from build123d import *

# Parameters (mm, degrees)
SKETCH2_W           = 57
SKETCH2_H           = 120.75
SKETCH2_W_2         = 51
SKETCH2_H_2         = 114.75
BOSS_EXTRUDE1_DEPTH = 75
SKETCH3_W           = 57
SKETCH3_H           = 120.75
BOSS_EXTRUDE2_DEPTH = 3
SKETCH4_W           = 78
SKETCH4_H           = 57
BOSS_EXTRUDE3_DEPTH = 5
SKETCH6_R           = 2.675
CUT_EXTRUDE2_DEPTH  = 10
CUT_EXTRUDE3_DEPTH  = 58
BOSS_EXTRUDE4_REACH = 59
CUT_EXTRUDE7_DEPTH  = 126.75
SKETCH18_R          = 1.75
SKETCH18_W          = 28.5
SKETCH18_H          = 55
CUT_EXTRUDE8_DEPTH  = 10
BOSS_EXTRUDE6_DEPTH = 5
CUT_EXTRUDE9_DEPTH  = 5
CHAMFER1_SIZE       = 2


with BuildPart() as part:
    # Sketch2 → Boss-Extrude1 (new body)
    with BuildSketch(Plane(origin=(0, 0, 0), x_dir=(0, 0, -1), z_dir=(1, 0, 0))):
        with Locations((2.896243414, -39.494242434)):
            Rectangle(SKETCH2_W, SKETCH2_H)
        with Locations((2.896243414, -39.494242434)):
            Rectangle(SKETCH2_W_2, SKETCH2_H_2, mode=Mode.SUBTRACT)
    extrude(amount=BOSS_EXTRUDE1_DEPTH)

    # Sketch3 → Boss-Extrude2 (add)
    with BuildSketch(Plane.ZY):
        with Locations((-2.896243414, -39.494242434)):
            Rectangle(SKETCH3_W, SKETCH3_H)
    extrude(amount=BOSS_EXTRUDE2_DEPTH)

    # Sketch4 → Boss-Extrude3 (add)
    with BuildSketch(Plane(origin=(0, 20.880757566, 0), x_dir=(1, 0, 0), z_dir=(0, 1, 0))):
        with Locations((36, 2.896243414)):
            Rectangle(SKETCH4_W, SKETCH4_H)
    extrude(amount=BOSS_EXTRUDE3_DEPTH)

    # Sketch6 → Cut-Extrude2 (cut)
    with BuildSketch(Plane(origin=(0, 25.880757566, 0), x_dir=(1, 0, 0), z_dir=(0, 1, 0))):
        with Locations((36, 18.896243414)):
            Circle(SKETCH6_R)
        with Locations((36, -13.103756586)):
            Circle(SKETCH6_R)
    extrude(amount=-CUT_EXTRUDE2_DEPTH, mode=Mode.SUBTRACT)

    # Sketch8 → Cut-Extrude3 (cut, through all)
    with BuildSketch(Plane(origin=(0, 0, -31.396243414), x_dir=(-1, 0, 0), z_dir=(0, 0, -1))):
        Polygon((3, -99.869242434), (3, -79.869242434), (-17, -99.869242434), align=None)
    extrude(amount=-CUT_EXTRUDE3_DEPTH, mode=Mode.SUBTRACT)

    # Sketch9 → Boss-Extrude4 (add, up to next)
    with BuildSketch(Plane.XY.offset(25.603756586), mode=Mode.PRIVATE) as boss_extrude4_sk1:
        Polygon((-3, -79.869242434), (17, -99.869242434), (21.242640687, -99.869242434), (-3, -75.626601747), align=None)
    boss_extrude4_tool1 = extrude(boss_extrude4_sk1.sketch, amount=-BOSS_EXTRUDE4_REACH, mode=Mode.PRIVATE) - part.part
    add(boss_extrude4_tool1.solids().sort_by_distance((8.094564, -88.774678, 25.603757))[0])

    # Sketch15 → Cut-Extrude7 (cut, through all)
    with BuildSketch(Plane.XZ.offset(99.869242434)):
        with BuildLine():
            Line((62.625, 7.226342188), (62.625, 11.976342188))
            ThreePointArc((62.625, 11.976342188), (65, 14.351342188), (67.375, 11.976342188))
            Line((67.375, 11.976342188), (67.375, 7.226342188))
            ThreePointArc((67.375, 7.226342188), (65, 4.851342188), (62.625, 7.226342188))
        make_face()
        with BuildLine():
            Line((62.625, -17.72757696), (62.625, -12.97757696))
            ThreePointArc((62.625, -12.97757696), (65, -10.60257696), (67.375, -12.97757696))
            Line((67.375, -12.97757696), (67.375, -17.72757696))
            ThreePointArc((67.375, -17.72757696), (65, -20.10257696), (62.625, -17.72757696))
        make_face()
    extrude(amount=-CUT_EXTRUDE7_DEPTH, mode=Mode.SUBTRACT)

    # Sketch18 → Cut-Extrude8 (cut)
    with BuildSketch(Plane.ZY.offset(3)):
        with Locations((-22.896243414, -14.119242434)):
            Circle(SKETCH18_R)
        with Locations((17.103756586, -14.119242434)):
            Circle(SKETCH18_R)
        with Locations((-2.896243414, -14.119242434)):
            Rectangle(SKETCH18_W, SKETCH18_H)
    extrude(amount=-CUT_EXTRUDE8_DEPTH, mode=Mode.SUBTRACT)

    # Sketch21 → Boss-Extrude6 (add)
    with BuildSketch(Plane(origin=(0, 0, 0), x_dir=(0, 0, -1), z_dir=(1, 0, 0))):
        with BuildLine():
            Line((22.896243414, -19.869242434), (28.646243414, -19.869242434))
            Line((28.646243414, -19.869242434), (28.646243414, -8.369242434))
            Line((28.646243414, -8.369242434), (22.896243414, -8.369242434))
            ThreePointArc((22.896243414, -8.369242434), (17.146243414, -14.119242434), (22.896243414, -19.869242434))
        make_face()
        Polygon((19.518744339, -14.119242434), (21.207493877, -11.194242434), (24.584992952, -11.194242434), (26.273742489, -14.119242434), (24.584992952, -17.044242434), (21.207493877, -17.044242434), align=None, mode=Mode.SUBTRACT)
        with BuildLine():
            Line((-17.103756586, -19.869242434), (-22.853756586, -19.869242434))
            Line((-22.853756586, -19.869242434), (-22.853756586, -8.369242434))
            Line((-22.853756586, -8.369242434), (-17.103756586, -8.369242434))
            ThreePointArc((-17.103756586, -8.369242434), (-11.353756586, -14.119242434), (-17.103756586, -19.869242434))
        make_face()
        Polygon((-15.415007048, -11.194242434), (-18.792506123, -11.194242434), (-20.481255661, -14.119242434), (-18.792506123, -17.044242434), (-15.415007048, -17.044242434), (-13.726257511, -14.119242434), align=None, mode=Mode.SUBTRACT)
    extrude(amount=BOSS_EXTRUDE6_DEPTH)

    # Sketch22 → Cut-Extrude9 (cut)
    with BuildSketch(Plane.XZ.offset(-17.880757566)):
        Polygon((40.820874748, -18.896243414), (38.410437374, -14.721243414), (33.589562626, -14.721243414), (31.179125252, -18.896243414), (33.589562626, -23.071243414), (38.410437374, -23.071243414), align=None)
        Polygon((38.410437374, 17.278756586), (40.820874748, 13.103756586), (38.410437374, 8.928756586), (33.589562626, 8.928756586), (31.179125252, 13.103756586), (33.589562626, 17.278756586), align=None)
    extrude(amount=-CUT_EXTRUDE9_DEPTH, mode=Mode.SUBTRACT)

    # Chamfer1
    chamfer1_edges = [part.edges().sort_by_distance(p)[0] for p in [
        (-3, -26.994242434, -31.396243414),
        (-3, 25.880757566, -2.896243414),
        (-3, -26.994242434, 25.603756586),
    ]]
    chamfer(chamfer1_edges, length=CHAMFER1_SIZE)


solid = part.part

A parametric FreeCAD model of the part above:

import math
import FreeCAD as App
import Part
import Sketcher
Q = App.Units.Quantity


def edges_at(feature, points):
    """Names of the edges that pass closest to the given points."""
    edges = feature.Shape.Edges
    near = lambda p: min(range(len(edges)), key=lambda i: edges[i].distToShape(Part.Vertex(*p))[0])
    return sorted({f"Edge{near(p) + 1}" for p in points})

doc = App.newDocument("Part")
body = doc.addObject("PartDesign::Body", "Body")

sketch1 = doc.addObject("Sketcher::SketchObject", "Sketch")
body.addObject(sketch1)
sketch1.AttachmentSupport = (doc.YZ_Plane, [""])
sketch1.MapMode = "FlatFace"
sketch1.addGeometry(Part.LineSegment(App.Vector(21, 26, 0), App.Vector(-100, 26, 0)), False)
sketch1.addGeometry(Part.LineSegment(App.Vector(-100, 26, 0), App.Vector(-100, -31, 0)), False)
sketch1.addGeometry(Part.LineSegment(App.Vector(-100, -31, 0), App.Vector(21, -31, 0)), False)
sketch1.addGeometry(Part.LineSegment(App.Vector(21, -31, 0), App.Vector(21, 26, 0)), False)
sketch1.addGeometry(Part.LineSegment(App.Vector(-97, -28, 0), App.Vector(-97, 23, 0)), False)
sketch1.addGeometry(Part.LineSegment(App.Vector(-97, 23, 0), App.Vector(18, 23, 0)), False)
sketch1.addGeometry(Part.LineSegment(App.Vector(18, 23, 0), App.Vector(18, -28, 0)), False)
sketch1.addGeometry(Part.LineSegment(App.Vector(18, -28, 0), App.Vector(-97, -28, 0)), False)
sketch1.addConstraint(Sketcher.Constraint("Coincident", 0, 2, 1, 1))
sketch1.addConstraint(Sketcher.Constraint("Coincident", 1, 2, 2, 1))
sketch1.addConstraint(Sketcher.Constraint("Coincident", 2, 2, 3, 1))
sketch1.addConstraint(Sketcher.Constraint("Coincident", 3, 2, 0, 1))
sketch1.addConstraint(Sketcher.Constraint("Coincident", 4, 2, 5, 1))
sketch1.addConstraint(Sketcher.Constraint("Coincident", 5, 2, 6, 1))
sketch1.addConstraint(Sketcher.Constraint("Coincident", 6, 2, 7, 1))
sketch1.addConstraint(Sketcher.Constraint("Coincident", 7, 2, 4, 1))
sketch1.addConstraint(Sketcher.Constraint("Horizontal", 0))
sketch1.addConstraint(Sketcher.Constraint("Vertical", 1))
sketch1.addConstraint(Sketcher.Constraint("Horizontal", 2))
sketch1.addConstraint(Sketcher.Constraint("Vertical", 3))
sketch1.addConstraint(Sketcher.Constraint("Vertical", 4))
sketch1.addConstraint(Sketcher.Constraint("Horizontal", 5))
sketch1.addConstraint(Sketcher.Constraint("Vertical", 6))
sketch1.addConstraint(Sketcher.Constraint("Horizontal", 7))
sketch1.addConstraint(Sketcher.Constraint("DistanceY", 1, 2, 1, 1, Q("57 mm")))
sketch1.addConstraint(Sketcher.Constraint("DistanceY", 4, 1, 4, 2, Q("51 mm")))
sketch1.addConstraint(Sketcher.Constraint("DistanceX", 0, 2, 4, 2, Q("3 mm")))
sketch1.addConstraint(Sketcher.Constraint("DistanceY", 4, 2, 0, 2, Q("3 mm")))
sketch1.addConstraint(Sketcher.Constraint("DistanceX", 5, 2, 3, 2, Q("3 mm")))
sketch1.addConstraint(Sketcher.Constraint("DistanceX", 0, 2, 0, 1, Q("120.75 mm")))
sketch1.addConstraint(Sketcher.Constraint("DistanceX", 0, 2, -1, 1, Q("99.869242 mm")))
sketch1.addConstraint(Sketcher.Constraint("DistanceY", -1, 1, 0, 2, Q("25.603757 mm")))
pad1 = doc.addObject("PartDesign::Pad", "Pad")
body.addObject(pad1)
pad1.Profile = sketch1
pad1.Length = 75

sketch2 = doc.addObject("Sketcher::SketchObject", "Sketch001")
body.addObject(sketch2)
sketch2.AttachmentSupport = (doc.YZ_Plane, [""])
sketch2.MapMode = "FlatFace"
sketch2.addGeometry(Part.LineSegment(App.Vector(21, -31, 0), App.Vector(-100, -31, 0)), False)
sketch2.addGeometry(Part.LineSegment(App.Vector(-100, -31, 0), App.Vector(-100, 26, 0)), False)
sketch2.addGeometry(Part.LineSegment(App.Vector(-100, 26, 0), App.Vector(21, 26, 0)), False)
sketch2.addGeometry(Part.LineSegment(App.Vector(21, 26, 0), App.Vector(21, -31, 0)), False)
sketch2.addConstraint(Sketcher.Constraint("Coincident", 0, 2, 1, 1))
sketch2.addConstraint(Sketcher.Constraint("Coincident", 1, 2, 2, 1))
sketch2.addConstraint(Sketcher.Constraint("Coincident", 2, 2, 3, 1))
sketch2.addConstraint(Sketcher.Constraint("Coincident", 3, 2, 0, 1))
sketch2.addConstraint(Sketcher.Constraint("Horizontal", 0))
sketch2.addConstraint(Sketcher.Constraint("Vertical", 1))
sketch2.addConstraint(Sketcher.Constraint("Horizontal", 2))
sketch2.addConstraint(Sketcher.Constraint("Vertical", 3))
sketch2.addConstraint(Sketcher.Constraint("DistanceY", 1, 1, 1, 2, Q("57 mm")))
sketch2.addConstraint(Sketcher.Constraint("DistanceX", 0, 2, 0, 1, Q("120.75 mm")))
sketch2.addConstraint(Sketcher.Constraint("DistanceX", 0, 2, -1, 1, Q("99.869242 mm")))
sketch2.addConstraint(Sketcher.Constraint("DistanceY", 0, 2, -1, 1, Q("31.396243 mm")))
pad2 = doc.addObject("PartDesign::Pad", "Pad001")
body.addObject(pad2)
pad2.Profile = sketch2
pad2.Length = 3
pad2.Reversed = True

sketch3 = doc.addObject("Sketcher::SketchObject", "Sketch002")
body.addObject(sketch3)
sketch3.AttachmentSupport = (doc.XZ_Plane, [""])
sketch3.MapMode = "FlatFace"
sketch3.AttachmentOffset = App.Placement(App.Vector(0, 0, -20.880758), App.Rotation())
sketch3.addGeometry(Part.LineSegment(App.Vector(-3, -31, 0), App.Vector(-3, 26, 0)), False)
sketch3.addGeometry(Part.LineSegment(App.Vector(-3, 26, 0), App.Vector(75, 26, 0)), False)
sketch3.addGeometry(Part.LineSegment(App.Vector(75, 26, 0), App.Vector(75, -31, 0)), False)
sketch3.addGeometry(Part.LineSegment(App.Vector(75, -31, 0), App.Vector(-3, -31, 0)), False)
sketch3.addConstraint(Sketcher.Constraint("Coincident", 0, 2, 1, 1))
sketch3.addConstraint(Sketcher.Constraint("Coincident", 1, 2, 2, 1))
sketch3.addConstraint(Sketcher.Constraint("Coincident", 2, 2, 3, 1))
sketch3.addConstraint(Sketcher.Constraint("Coincident", 3, 2, 0, 1))
sketch3.addConstraint(Sketcher.Constraint("Vertical", 0))
sketch3.addConstraint(Sketcher.Constraint("Horizontal", 1))
sketch3.addConstraint(Sketcher.Constraint("Vertical", 2))
sketch3.addConstraint(Sketcher.Constraint("Horizontal", 3))
sketch3.addConstraint(Sketcher.Constraint("DistanceX", 1, 1, 1, 2, Q("78 mm")))
sketch3.addConstraint(Sketcher.Constraint("DistanceY", 0, 1, 0, 2, Q("57 mm")))
sketch3.addConstraint(Sketcher.Constraint("DistanceX", 0, 2, -1, 1, Q("3 mm")))
sketch3.addConstraint(Sketcher.Constraint("DistanceY", -1, 1, 0, 2, Q("25.603757 mm")))
pad3 = doc.addObject("PartDesign::Pad", "Pad002")
body.addObject(pad3)
pad3.Profile = sketch3
pad3.Length = 5
pad3.Reversed = True

sketch4 = doc.addObject("Sketcher::SketchObject", "Sketch003")
body.addObject(sketch4)
sketch4.AttachmentSupport = (doc.XZ_Plane, [""])
sketch4.MapMode = "FlatFace"
sketch4.AttachmentOffset = App.Placement(App.Vector(0, 0, -25.880758), App.Rotation())
sketch4.addGeometry(Part.Circle(App.Vector(36, -18.9, 0), App.Vector(0, 0, 1), 2.7), False)
sketch4.addGeometry(Part.Circle(App.Vector(36, 13.1, 0), App.Vector(0, 0, 1), 2.7), False)
sketch4.addConstraint(Sketcher.Constraint("Equal", 0, 1))
sketch4.addConstraint(Sketcher.Constraint("Vertical", 0, 3, 1, 3))
sketch4.addConstraint(Sketcher.Constraint("Diameter", 0, Q("5.35 mm")))
sketch4.addConstraint(Sketcher.Constraint("DistanceX", -1, 1, 0, 3, Q("36 mm")))
sketch4.addConstraint(Sketcher.Constraint("DistanceY", 0, 3, 1, 3, Q("32 mm")))
sketch4.addConstraint(Sketcher.Constraint("DistanceY", 0, 3, -1, 1, Q("18.896243 mm")))
pocket1 = doc.addObject("PartDesign::Pocket", "Pocket")
body.addObject(pocket1)
pocket1.Profile = sketch4
pocket1.Length = 10
pocket1.Reversed = True

sketch5 = doc.addObject("Sketcher::SketchObject", "Sketch004")
body.addObject(sketch5)
sketch5.AttachmentSupport = (doc.XY_Plane, [""])
sketch5.MapMode = "FlatFace"
sketch5.AttachmentOffset = App.Placement(App.Vector(0, 0, -31.396243), App.Rotation())
sketch5.addGeometry(Part.LineSegment(App.Vector(-3, -100, 0), App.Vector(-3, -80, 0)), False)
sketch5.addGeometry(Part.LineSegment(App.Vector(-3, -80, 0), App.Vector(17, -100, 0)), False)
sketch5.addGeometry(Part.LineSegment(App.Vector(17, -100, 0), App.Vector(-3, -100, 0)), False)
sketch5.addConstraint(Sketcher.Constraint("Coincident", 0, 2, 1, 1))
sketch5.addConstraint(Sketcher.Constraint("Coincident", 1, 2, 2, 1))
sketch5.addConstraint(Sketcher.Constraint("Coincident", 2, 2, 0, 1))
sketch5.addConstraint(Sketcher.Constraint("Vertical", 0))
sketch5.addConstraint(Sketcher.Constraint("Horizontal", 2))
sketch5.addConstraint(Sketcher.Constraint("Equal", 2, 0))
sketch5.addConstraint(Sketcher.Constraint("DistanceX", 2, 2, 2, 1, Q("20 mm")))
sketch5.addConstraint(Sketcher.Constraint("DistanceX", 0, 2, -1, 1, Q("3 mm")))
sketch5.addConstraint(Sketcher.Constraint("DistanceY", 0, 2, -1, 1, Q("79.869242 mm")))
pocket2 = doc.addObject("PartDesign::Pocket", "Pocket001")
body.addObject(pocket2)
pocket2.Profile = sketch5
pocket2.Type = "ThroughAll"
pocket2.Reversed = True

sketch6 = doc.addObject("Sketcher::SketchObject", "Sketch005")
body.addObject(sketch6)
sketch6.AttachmentSupport = (doc.XY_Plane, [""])
sketch6.MapMode = "FlatFace"
sketch6.AttachmentOffset = App.Placement(App.Vector(0, 0, 25.603757), App.Rotation())
sketch6.addGeometry(Part.LineSegment(App.Vector(-3, -79.9, 0), App.Vector(17, -99.9, 0)), False)
sketch6.addGeometry(Part.LineSegment(App.Vector(17, -99.9, 0), App.Vector(21.2, -99.9, 0)), False)
sketch6.addGeometry(Part.LineSegment(App.Vector(21.2, -99.9, 0), App.Vector(-3, -75.6, 0)), False)
sketch6.addGeometry(Part.LineSegment(App.Vector(-3, -75.6, 0), App.Vector(-3, -79.9, 0)), False)
sketch6.addConstraint(Sketcher.Constraint("Coincident", 0, 2, 1, 1))
sketch6.addConstraint(Sketcher.Constraint("Coincident", 1, 2, 2, 1))
sketch6.addConstraint(Sketcher.Constraint("Coincident", 2, 2, 3, 1))
sketch6.addConstraint(Sketcher.Constraint("Coincident", 3, 2, 0, 1))
sketch6.addConstraint(Sketcher.Constraint("Horizontal", 1))
sketch6.addConstraint(Sketcher.Constraint("Vertical", 3))
sketch6.addConstraint(Sketcher.Constraint("Parallel", 0, 2))
sketch6.addConstraint(Sketcher.Constraint("Equal", 1, 3))
sketch6.addConstraint(Sketcher.Constraint("DistanceX", -1, 1, 0, 2, Q("17 mm")))
sketch6.addConstraint(Sketcher.Constraint("DistanceX", 2, 2, -1, 1, Q("3 mm")))
sketch6.addConstraint(Sketcher.Constraint("DistanceX", 1, 1, 1, 2, Q("4.242641 mm")))
sketch6.addConstraint(Sketcher.Constraint("DistanceY", 2, 2, -1, 1, Q("75.626602 mm")))
pad4 = doc.addObject("PartDesign::Pad", "Pad003")
body.addObject(pad4)
pad4.Profile = sketch6
pad4.Length = 54
pad4.Reversed = True

sketch7 = doc.addObject("Sketcher::SketchObject", "Sketch006")
body.addObject(sketch7)
sketch7.AttachmentSupport = (doc.XZ_Plane, [""])
sketch7.MapMode = "FlatFace"
sketch7.AttachmentOffset = App.Placement(App.Vector(0, 0, 99.869242), App.Rotation())
sketch7.addGeometry(Part.LineSegment(App.Vector(62.6, 12, 0), App.Vector(62.6, 7.2, 0)), False)
sketch7.addGeometry(Part.ArcOfCircle(Part.Circle(App.Vector(65, 7.2, 0), App.Vector(0, 0, 1), 2.4), math.radians(180), math.radians(360)), False)
sketch7.addGeometry(Part.LineSegment(App.Vector(67.4, 7.2, 0), App.Vector(67.4, 12, 0)), False)
sketch7.addGeometry(Part.ArcOfCircle(Part.Circle(App.Vector(65, 12, 0), App.Vector(0, 0, 1), 2.4), math.radians(0), math.radians(180)), False)
sketch7.addGeometry(Part.LineSegment(App.Vector(62.6, -13, 0), App.Vector(62.6, -17.7, 0)), False)
sketch7.addGeometry(Part.ArcOfCircle(Part.Circle(App.Vector(65, -17.7, 0), App.Vector(0, 0, 1), 2.4), math.radians(180), math.radians(360)), False)
sketch7.addGeometry(Part.LineSegment(App.Vector(67.4, -17.7, 0), App.Vector(67.4, -13, 0)), False)
sketch7.addGeometry(Part.ArcOfCircle(Part.Circle(App.Vector(65, -13, 0), App.Vector(0, 0, 1), 2.4), math.radians(0), math.radians(180)), False)
sketch7.addConstraint(Sketcher.Constraint("Tangent", 0, 2, 1, 1))
sketch7.addConstraint(Sketcher.Constraint("Tangent", 1, 2, 2, 1))
sketch7.addConstraint(Sketcher.Constraint("Tangent", 2, 2, 3, 1))
sketch7.addConstraint(Sketcher.Constraint("Tangent", 3, 2, 0, 1))
sketch7.addConstraint(Sketcher.Constraint("Tangent", 4, 2, 5, 1))
sketch7.addConstraint(Sketcher.Constraint("Tangent", 5, 2, 6, 1))
sketch7.addConstraint(Sketcher.Constraint("Tangent", 6, 2, 7, 1))
sketch7.addConstraint(Sketcher.Constraint("Tangent", 7, 2, 4, 1))
sketch7.addConstraint(Sketcher.Constraint("Vertical", 0))
sketch7.addConstraint(Sketcher.Constraint("Vertical", 2))
sketch7.addConstraint(Sketcher.Constraint("Vertical", 4))
sketch7.addConstraint(Sketcher.Constraint("Vertical", 6))
sketch7.addConstraint(Sketcher.Constraint("Equal", 3, 5))
sketch7.addConstraint(Sketcher.Constraint("Vertical", 3, 3, 5, 3))
sketch7.addConstraint(Sketcher.Constraint("Equal", 2, 4))
sketch7.addConstraint(Sketcher.Constraint("DistanceX", -1, 1, 1, 3, Q("65 mm")))
sketch7.addConstraint(Sketcher.Constraint("Radius", 1, Q("2.375 mm")))
sketch7.addConstraint(Sketcher.Constraint("DistanceY", 0, 2, 0, 1, Q("4.75 mm")))
sketch7.addConstraint(Sketcher.Constraint("DistanceY", 5, 3, 1, 3, Q("24.953919 mm")))
sketch7.addConstraint(Sketcher.Constraint("DistanceY", -1, 1, 1, 3, Q("7.226342 mm")))
pocket3 = doc.addObject("PartDesign::Pocket", "Pocket002")
body.addObject(pocket3)
pocket3.Profile = sketch7
pocket3.Type = "ThroughAll"

sketch8 = doc.addObject("Sketcher::SketchObject", "Sketch007")
body.addObject(sketch8)
sketch8.AttachmentSupport = (doc.YZ_Plane, [""])
sketch8.MapMode = "FlatFace"
sketch8.AttachmentOffset = App.Placement(App.Vector(0, 0, -3), App.Rotation())
sketch8.addGeometry(Part.Circle(App.Vector(-14.1, -22.9, 0), App.Vector(0, 0, 1), 1.8), False)
sketch8.addGeometry(Part.Circle(App.Vector(-14.1, 17.1, 0), App.Vector(0, 0, 1), 1.8), False)
sketch8.addGeometry(Part.LineSegment(App.Vector(13.4, -17.1, 0), App.Vector(-41.6, -17.1, 0)), False)
sketch8.addGeometry(Part.LineSegment(App.Vector(-41.6, -17.1, 0), App.Vector(-41.6, 11.4, 0)), False)
sketch8.addGeometry(Part.LineSegment(App.Vector(-41.6, 11.4, 0), App.Vector(13.4, 11.4, 0)), False)
sketch8.addGeometry(Part.LineSegment(App.Vector(13.4, 11.4, 0), App.Vector(13.4, -17.1, 0)), False)
sketch8.addConstraint(Sketcher.Constraint("Coincident", 2, 2, 3, 1))
sketch8.addConstraint(Sketcher.Constraint("Coincident", 3, 2, 4, 1))
sketch8.addConstraint(Sketcher.Constraint("Coincident", 4, 2, 5, 1))
sketch8.addConstraint(Sketcher.Constraint("Coincident", 5, 2, 2, 1))
sketch8.addConstraint(Sketcher.Constraint("Horizontal", 2))
sketch8.addConstraint(Sketcher.Constraint("Vertical", 3))
sketch8.addConstraint(Sketcher.Constraint("Horizontal", 4))
sketch8.addConstraint(Sketcher.Constraint("Vertical", 5))
sketch8.addConstraint(Sketcher.Constraint("Equal", 0, 1))
sketch8.addConstraint(Sketcher.Constraint("Vertical", 0, 3, 1, 3))
sketch8.addConstraint(Sketcher.Constraint("Diameter", 0, Q("3.5 mm")))
sketch8.addConstraint(Sketcher.Constraint("DistanceX", 2, 2, 2, 1, Q("55 mm")))
sketch8.addConstraint(Sketcher.Constraint("DistanceY", 3, 1, 3, 2, Q("28.5 mm")))
sketch8.addConstraint(Sketcher.Constraint("DistanceY", 0, 3, 1, 3, Q("40 mm")))
sketch8.addConstraint(Sketcher.Constraint("DistanceX", 2, 2, 0, 3, Q("27.5 mm")))
sketch8.addConstraint(Sketcher.Constraint("DistanceY", 0, 3, 2, 2, Q("5.75 mm")))
sketch8.addConstraint(Sketcher.Constraint("DistanceX", 0, 3, -1, 1, Q("14.119242 mm")))
sketch8.addConstraint(Sketcher.Constraint("DistanceY", 0, 3, -1, 1, Q("22.896243 mm")))
pocket4 = doc.addObject("PartDesign::Pocket", "Pocket003")
body.addObject(pocket4)
pocket4.Profile = sketch8
pocket4.Length = 10
pocket4.Reversed = True

sketch9 = doc.addObject("Sketcher::SketchObject", "Sketch008")
body.addObject(sketch9)
sketch9.AttachmentSupport = (doc.YZ_Plane, [""])
sketch9.MapMode = "FlatFace"
sketch9.addGeometry(Part.LineSegment(App.Vector(-19.9, -22.9, 0), App.Vector(-19.9, -28.6, 0)), False)
sketch9.addGeometry(Part.LineSegment(App.Vector(-19.9, -28.6, 0), App.Vector(-8.4, -28.6, 0)), False)
sketch9.addGeometry(Part.LineSegment(App.Vector(-8.4, -28.6, 0), App.Vector(-8.4, -22.9, 0)), False)
sketch9.addGeometry(Part.ArcOfCircle(Part.Circle(App.Vector(-14.1, -22.9, 0), App.Vector(0, 0, 1), 5.8), math.radians(0), math.radians(180)), False)
sketch9.addGeometry(Part.LineSegment(App.Vector(-17, -21.2, 0), App.Vector(-14.1, -19.5, 0)), False)
sketch9.addGeometry(Part.LineSegment(App.Vector(-14.1, -19.5, 0), App.Vector(-11.2, -21.2, 0)), False)
sketch9.addGeometry(Part.LineSegment(App.Vector(-11.2, -21.2, 0), App.Vector(-11.2, -24.6, 0)), False)
sketch9.addGeometry(Part.LineSegment(App.Vector(-11.2, -24.6, 0), App.Vector(-14.1, -26.3, 0)), False)
sketch9.addGeometry(Part.LineSegment(App.Vector(-14.1, -26.3, 0), App.Vector(-17, -24.6, 0)), False)
sketch9.addGeometry(Part.LineSegment(App.Vector(-17, -24.6, 0), App.Vector(-17, -21.2, 0)), False)
sketch9.addGeometry(Part.LineSegment(App.Vector(-19.9, 22.9, 0), App.Vector(-19.9, 17.1, 0)), False)
sketch9.addGeometry(Part.ArcOfCircle(Part.Circle(App.Vector(-14.1, 17.1, 0), App.Vector(0, 0, 1), 5.8), math.radians(180), math.radians(360)), False)
sketch9.addGeometry(Part.LineSegment(App.Vector(-8.4, 17.1, 0), App.Vector(-8.4, 22.9, 0)), False)
sketch9.addGeometry(Part.LineSegment(App.Vector(-8.4, 22.9, 0), App.Vector(-19.9, 22.9, 0)), False)
sketch9.addGeometry(Part.LineSegment(App.Vector(-11.2, 15.4, 0), App.Vector(-14.1, 13.7, 0)), False)
sketch9.addGeometry(Part.LineSegment(App.Vector(-14.1, 13.7, 0), App.Vector(-17, 15.4, 0)), False)
sketch9.addGeometry(Part.LineSegment(App.Vector(-17, 15.4, 0), App.Vector(-17, 18.8, 0)), False)
sketch9.addGeometry(Part.LineSegment(App.Vector(-17, 18.8, 0), App.Vector(-14.1, 20.5, 0)), False)
sketch9.addGeometry(Part.LineSegment(App.Vector(-14.1, 20.5, 0), App.Vector(-11.2, 18.8, 0)), False)
sketch9.addGeometry(Part.LineSegment(App.Vector(-11.2, 18.8, 0), App.Vector(-11.2, 15.4, 0)), False)
sketch9.addConstraint(Sketcher.Constraint("Coincident", 0, 2, 1, 1))
sketch9.addConstraint(Sketcher.Constraint("Coincident", 1, 2, 2, 1))
sketch9.addConstraint(Sketcher.Constraint("Tangent", 2, 2, 3, 1))
sketch9.addConstraint(Sketcher.Constraint("Tangent", 3, 2, 0, 1))
sketch9.addConstraint(Sketcher.Constraint("Coincident", 4, 2, 5, 1))
sketch9.addConstraint(Sketcher.Constraint("Coincident", 5, 2, 6, 1))
sketch9.addConstraint(Sketcher.Constraint("Coincident", 6, 2, 7, 1))
sketch9.addConstraint(Sketcher.Constraint("Coincident", 7, 2, 8, 1))
sketch9.addConstraint(Sketcher.Constraint("Coincident", 8, 2, 9, 1))
sketch9.addConstraint(Sketcher.Constraint("Coincident", 9, 2, 4, 1))
sketch9.addConstraint(Sketcher.Constraint("Tangent", 10, 2, 11, 1))
sketch9.addConstraint(Sketcher.Constraint("Tangent", 11, 2, 12, 1))
sketch9.addConstraint(Sketcher.Constraint("Coincident", 12, 2, 13, 1))
sketch9.addConstraint(Sketcher.Constraint("Coincident", 13, 2, 10, 1))
sketch9.addConstraint(Sketcher.Constraint("Coincident", 14, 2, 15, 1))
sketch9.addConstraint(Sketcher.Constraint("Coincident", 15, 2, 16, 1))
sketch9.addConstraint(Sketcher.Constraint("Coincident", 16, 2, 17, 1))
sketch9.addConstraint(Sketcher.Constraint("Coincident", 17, 2, 18, 1))
sketch9.addConstraint(Sketcher.Constraint("Coincident", 18, 2, 19, 1))
sketch9.addConstraint(Sketcher.Constraint("Coincident", 19, 2, 14, 1))
sketch9.addConstraint(Sketcher.Constraint("Vertical", 0))
sketch9.addConstraint(Sketcher.Constraint("Horizontal", 1))
sketch9.addConstraint(Sketcher.Constraint("Vertical", 2))
sketch9.addConstraint(Sketcher.Constraint("Vertical", 6))
sketch9.addConstraint(Sketcher.Constraint("Vertical", 9))
sketch9.addConstraint(Sketcher.Constraint("Vertical", 10))
sketch9.addConstraint(Sketcher.Constraint("Vertical", 12))
sketch9.addConstraint(Sketcher.Constraint("Horizontal", 13))
sketch9.addConstraint(Sketcher.Constraint("Vertical", 16))
sketch9.addConstraint(Sketcher.Constraint("Vertical", 19))
sketch9.addConstraint(Sketcher.Constraint("Equal", 3, 11))
sketch9.addConstraint(Sketcher.Constraint("Parallel", 4, 7))
sketch9.addConstraint(Sketcher.Constraint("Parallel", 5, 8))
sketch9.addConstraint(Sketcher.Constraint("Parallel", 7, 14))
sketch9.addConstraint(Sketcher.Constraint("Parallel", 8, 15))
sketch9.addConstraint(Sketcher.Constraint("Parallel", 14, 17))
sketch9.addConstraint(Sketcher.Constraint("Parallel", 15, 18))
sketch9.addConstraint(Sketcher.Constraint("Horizontal", 6, 2, 8, 2))
sketch9.addConstraint(Sketcher.Constraint("Horizontal", 5, 2, 9, 2))
sketch9.addConstraint(Sketcher.Constraint("Horizontal", 16, 2, 18, 2))
sketch9.addConstraint(Sketcher.Constraint("Horizontal", 15, 2, 19, 2))
sketch9.addConstraint(Sketcher.Constraint("Vertical", 3, 3, 11, 3))
sketch9.addConstraint(Sketcher.Constraint("Vertical", 11, 3, 4, 2))
sketch9.addConstraint(Sketcher.Constraint("Vertical", 4, 2, 7, 2))
sketch9.addConstraint(Sketcher.Constraint("Vertical", 7, 2, 14, 2))
sketch9.addConstraint(Sketcher.Constraint("Vertical", 9, 2, 15, 2))
sketch9.addConstraint(Sketcher.Constraint("Equal", 2, 10))
sketch9.addConstraint(Sketcher.Constraint("Equal", 9, 16))
sketch9.addConstraint(Sketcher.Constraint("Angle", 4, Q("30 deg")))
sketch9.addConstraint(Sketcher.Constraint("Radius", 3, Q("5.75 mm")))
sketch9.addConstraint(Sketcher.Constraint("DistanceY", 3, 3, 11, 3, Q("40 mm")))
sketch9.addConstraint(Sketcher.Constraint("DistanceY", 0, 2, 0, 1, Q("5.75 mm")))
sketch9.addConstraint(Sketcher.Constraint("DistanceX", 8, 2, 6, 2, Q("5.85 mm")))
sketch9.addConstraint(Sketcher.Constraint("DistanceY", 6, 2, 6, 1, Q("3.377499 mm")))
sketch9.addConstraint(Sketcher.Constraint("DistanceY", 3, 3, 4, 2, Q("3.377499 mm")))
sketch9.addConstraint(Sketcher.Constraint("DistanceY", 14, 2, 11, 3, Q("3.377499 mm")))
sketch9.addConstraint(Sketcher.Constraint("DistanceX", 3, 3, -1, 1, Q("14.119242 mm")))
sketch9.addConstraint(Sketcher.Constraint("DistanceY", 3, 3, -1, 1, Q("22.896243 mm")))
pad5 = doc.addObject("PartDesign::Pad", "Pad004")
body.addObject(pad5)
pad5.Profile = sketch9
pad5.Length = 5

sketch10 = doc.addObject("Sketcher::SketchObject", "Sketch009")
body.addObject(sketch10)
sketch10.AttachmentSupport = (doc.XZ_Plane, [""])
sketch10.MapMode = "FlatFace"
sketch10.AttachmentOffset = App.Placement(App.Vector(0, 0, -17.880758), App.Rotation())
sketch10.addGeometry(Part.LineSegment(App.Vector(40.8, -18.9, 0), App.Vector(38.4, -14.7, 0)), False)
sketch10.addGeometry(Part.LineSegment(App.Vector(38.4, -14.7, 0), App.Vector(33.6, -14.7, 0)), False)
sketch10.addGeometry(Part.LineSegment(App.Vector(33.6, -14.7, 0), App.Vector(31.2, -18.9, 0)), False)
sketch10.addGeometry(Part.LineSegment(App.Vector(31.2, -18.9, 0), App.Vector(33.6, -23.1, 0)), False)
sketch10.addGeometry(Part.LineSegment(App.Vector(33.6, -23.1, 0), App.Vector(38.4, -23.1, 0)), False)
sketch10.addGeometry(Part.LineSegment(App.Vector(38.4, -23.1, 0), App.Vector(40.8, -18.9, 0)), False)
sketch10.addGeometry(Part.LineSegment(App.Vector(40.8, 13.1, 0), App.Vector(38.4, 17.3, 0)), False)
sketch10.addGeometry(Part.LineSegment(App.Vector(38.4, 17.3, 0), App.Vector(33.6, 17.3, 0)), False)
sketch10.addGeometry(Part.LineSegment(App.Vector(33.6, 17.3, 0), App.Vector(31.2, 13.1, 0)), False)
sketch10.addGeometry(Part.LineSegment(App.Vector(31.2, 13.1, 0), App.Vector(33.6, 8.9, 0)), False)
sketch10.addGeometry(Part.LineSegment(App.Vector(33.6, 8.9, 0), App.Vector(38.4, 8.9, 0)), False)
sketch10.addGeometry(Part.LineSegment(App.Vector(38.4, 8.9, 0), App.Vector(40.8, 13.1, 0)), False)
sketch10.addConstraint(Sketcher.Constraint("Coincident", 0, 2, 1, 1))
sketch10.addConstraint(Sketcher.Constraint("Coincident", 1, 2, 2, 1))
sketch10.addConstraint(Sketcher.Constraint("Coincident", 2, 2, 3, 1))
sketch10.addConstraint(Sketcher.Constraint("Coincident", 3, 2, 4, 1))
sketch10.addConstraint(Sketcher.Constraint("Coincident", 4, 2, 5, 1))
sketch10.addConstraint(Sketcher.Constraint("Coincident", 5, 2, 0, 1))
sketch10.addConstraint(Sketcher.Constraint("Coincident", 6, 2, 7, 1))
sketch10.addConstraint(Sketcher.Constraint("Coincident", 7, 2, 8, 1))
sketch10.addConstraint(Sketcher.Constraint("Coincident", 8, 2, 9, 1))
sketch10.addConstraint(Sketcher.Constraint("Coincident", 9, 2, 10, 1))
sketch10.addConstraint(Sketcher.Constraint("Coincident", 10, 2, 11, 1))
sketch10.addConstraint(Sketcher.Constraint("Coincident", 11, 2, 6, 1))
sketch10.addConstraint(Sketcher.Constraint("Horizontal", 1))
sketch10.addConstraint(Sketcher.Constraint("Horizontal", 4))
sketch10.addConstraint(Sketcher.Constraint("Horizontal", 7))
sketch10.addConstraint(Sketcher.Constraint("Horizontal", 10))
sketch10.addConstraint(Sketcher.Constraint("Parallel", 0, 3))
sketch10.addConstraint(Sketcher.Constraint("Parallel", 2, 5))
sketch10.addConstraint(Sketcher.Constraint("Parallel", 3, 6))
sketch10.addConstraint(Sketcher.Constraint("Parallel", 5, 8))
sketch10.addConstraint(Sketcher.Constraint("Parallel", 6, 9))
sketch10.addConstraint(Sketcher.Constraint("Parallel", 8, 11))
sketch10.addConstraint(Sketcher.Constraint("Horizontal", 2, 2, 5, 2))
sketch10.addConstraint(Sketcher.Constraint("Horizontal", 8, 2, 11, 2))
sketch10.addConstraint(Sketcher.Constraint("Vertical", 1, 2, 3, 2))
sketch10.addConstraint(Sketcher.Constraint("Vertical", 0, 2, 4, 2))
sketch10.addConstraint(Sketcher.Constraint("Vertical", 4, 2, 6, 2))
sketch10.addConstraint(Sketcher.Constraint("Vertical", 3, 2, 7, 2))
sketch10.addConstraint(Sketcher.Constraint("Vertical", 2, 2, 8, 2))
sketch10.addConstraint(Sketcher.Constraint("Vertical", 7, 2, 9, 2))
sketch10.addConstraint(Sketcher.Constraint("Angle", 0, Q("120 deg")))
sketch10.addConstraint(Sketcher.Constraint("DistanceY", 0, 2, 6, 2, Q("32 mm")))
sketch10.addConstraint(Sketcher.Constraint("DistanceY", 3, 2, 1, 2, Q("8.35 mm")))
sketch10.addConstraint(Sketcher.Constraint("DistanceX", 1, 2, 1, 1, Q("4.820875 mm")))
sketch10.addConstraint(Sketcher.Constraint("DistanceX", -1, 1, 0, 2, Q("38.410437 mm")))
sketch10.addConstraint(Sketcher.Constraint("DistanceY", 0, 2, -1, 1, Q("14.721243 mm")))
pocket5 = doc.addObject("PartDesign::Pocket", "Pocket004")
body.addObject(pocket5)
pocket5.Profile = sketch10
pocket5.Length = 5
doc.recompute()

chamfer = doc.addObject("PartDesign::Chamfer", "Chamfer")
body.addObject(chamfer)
chamfer.Base = (pocket5, edges_at(pocket5, [(-3, -26.994, -31.396), (-3, 25.881, -2.896), (-3, -26.994, 25.604)]))
chamfer.Size = 2

doc.recompute()
